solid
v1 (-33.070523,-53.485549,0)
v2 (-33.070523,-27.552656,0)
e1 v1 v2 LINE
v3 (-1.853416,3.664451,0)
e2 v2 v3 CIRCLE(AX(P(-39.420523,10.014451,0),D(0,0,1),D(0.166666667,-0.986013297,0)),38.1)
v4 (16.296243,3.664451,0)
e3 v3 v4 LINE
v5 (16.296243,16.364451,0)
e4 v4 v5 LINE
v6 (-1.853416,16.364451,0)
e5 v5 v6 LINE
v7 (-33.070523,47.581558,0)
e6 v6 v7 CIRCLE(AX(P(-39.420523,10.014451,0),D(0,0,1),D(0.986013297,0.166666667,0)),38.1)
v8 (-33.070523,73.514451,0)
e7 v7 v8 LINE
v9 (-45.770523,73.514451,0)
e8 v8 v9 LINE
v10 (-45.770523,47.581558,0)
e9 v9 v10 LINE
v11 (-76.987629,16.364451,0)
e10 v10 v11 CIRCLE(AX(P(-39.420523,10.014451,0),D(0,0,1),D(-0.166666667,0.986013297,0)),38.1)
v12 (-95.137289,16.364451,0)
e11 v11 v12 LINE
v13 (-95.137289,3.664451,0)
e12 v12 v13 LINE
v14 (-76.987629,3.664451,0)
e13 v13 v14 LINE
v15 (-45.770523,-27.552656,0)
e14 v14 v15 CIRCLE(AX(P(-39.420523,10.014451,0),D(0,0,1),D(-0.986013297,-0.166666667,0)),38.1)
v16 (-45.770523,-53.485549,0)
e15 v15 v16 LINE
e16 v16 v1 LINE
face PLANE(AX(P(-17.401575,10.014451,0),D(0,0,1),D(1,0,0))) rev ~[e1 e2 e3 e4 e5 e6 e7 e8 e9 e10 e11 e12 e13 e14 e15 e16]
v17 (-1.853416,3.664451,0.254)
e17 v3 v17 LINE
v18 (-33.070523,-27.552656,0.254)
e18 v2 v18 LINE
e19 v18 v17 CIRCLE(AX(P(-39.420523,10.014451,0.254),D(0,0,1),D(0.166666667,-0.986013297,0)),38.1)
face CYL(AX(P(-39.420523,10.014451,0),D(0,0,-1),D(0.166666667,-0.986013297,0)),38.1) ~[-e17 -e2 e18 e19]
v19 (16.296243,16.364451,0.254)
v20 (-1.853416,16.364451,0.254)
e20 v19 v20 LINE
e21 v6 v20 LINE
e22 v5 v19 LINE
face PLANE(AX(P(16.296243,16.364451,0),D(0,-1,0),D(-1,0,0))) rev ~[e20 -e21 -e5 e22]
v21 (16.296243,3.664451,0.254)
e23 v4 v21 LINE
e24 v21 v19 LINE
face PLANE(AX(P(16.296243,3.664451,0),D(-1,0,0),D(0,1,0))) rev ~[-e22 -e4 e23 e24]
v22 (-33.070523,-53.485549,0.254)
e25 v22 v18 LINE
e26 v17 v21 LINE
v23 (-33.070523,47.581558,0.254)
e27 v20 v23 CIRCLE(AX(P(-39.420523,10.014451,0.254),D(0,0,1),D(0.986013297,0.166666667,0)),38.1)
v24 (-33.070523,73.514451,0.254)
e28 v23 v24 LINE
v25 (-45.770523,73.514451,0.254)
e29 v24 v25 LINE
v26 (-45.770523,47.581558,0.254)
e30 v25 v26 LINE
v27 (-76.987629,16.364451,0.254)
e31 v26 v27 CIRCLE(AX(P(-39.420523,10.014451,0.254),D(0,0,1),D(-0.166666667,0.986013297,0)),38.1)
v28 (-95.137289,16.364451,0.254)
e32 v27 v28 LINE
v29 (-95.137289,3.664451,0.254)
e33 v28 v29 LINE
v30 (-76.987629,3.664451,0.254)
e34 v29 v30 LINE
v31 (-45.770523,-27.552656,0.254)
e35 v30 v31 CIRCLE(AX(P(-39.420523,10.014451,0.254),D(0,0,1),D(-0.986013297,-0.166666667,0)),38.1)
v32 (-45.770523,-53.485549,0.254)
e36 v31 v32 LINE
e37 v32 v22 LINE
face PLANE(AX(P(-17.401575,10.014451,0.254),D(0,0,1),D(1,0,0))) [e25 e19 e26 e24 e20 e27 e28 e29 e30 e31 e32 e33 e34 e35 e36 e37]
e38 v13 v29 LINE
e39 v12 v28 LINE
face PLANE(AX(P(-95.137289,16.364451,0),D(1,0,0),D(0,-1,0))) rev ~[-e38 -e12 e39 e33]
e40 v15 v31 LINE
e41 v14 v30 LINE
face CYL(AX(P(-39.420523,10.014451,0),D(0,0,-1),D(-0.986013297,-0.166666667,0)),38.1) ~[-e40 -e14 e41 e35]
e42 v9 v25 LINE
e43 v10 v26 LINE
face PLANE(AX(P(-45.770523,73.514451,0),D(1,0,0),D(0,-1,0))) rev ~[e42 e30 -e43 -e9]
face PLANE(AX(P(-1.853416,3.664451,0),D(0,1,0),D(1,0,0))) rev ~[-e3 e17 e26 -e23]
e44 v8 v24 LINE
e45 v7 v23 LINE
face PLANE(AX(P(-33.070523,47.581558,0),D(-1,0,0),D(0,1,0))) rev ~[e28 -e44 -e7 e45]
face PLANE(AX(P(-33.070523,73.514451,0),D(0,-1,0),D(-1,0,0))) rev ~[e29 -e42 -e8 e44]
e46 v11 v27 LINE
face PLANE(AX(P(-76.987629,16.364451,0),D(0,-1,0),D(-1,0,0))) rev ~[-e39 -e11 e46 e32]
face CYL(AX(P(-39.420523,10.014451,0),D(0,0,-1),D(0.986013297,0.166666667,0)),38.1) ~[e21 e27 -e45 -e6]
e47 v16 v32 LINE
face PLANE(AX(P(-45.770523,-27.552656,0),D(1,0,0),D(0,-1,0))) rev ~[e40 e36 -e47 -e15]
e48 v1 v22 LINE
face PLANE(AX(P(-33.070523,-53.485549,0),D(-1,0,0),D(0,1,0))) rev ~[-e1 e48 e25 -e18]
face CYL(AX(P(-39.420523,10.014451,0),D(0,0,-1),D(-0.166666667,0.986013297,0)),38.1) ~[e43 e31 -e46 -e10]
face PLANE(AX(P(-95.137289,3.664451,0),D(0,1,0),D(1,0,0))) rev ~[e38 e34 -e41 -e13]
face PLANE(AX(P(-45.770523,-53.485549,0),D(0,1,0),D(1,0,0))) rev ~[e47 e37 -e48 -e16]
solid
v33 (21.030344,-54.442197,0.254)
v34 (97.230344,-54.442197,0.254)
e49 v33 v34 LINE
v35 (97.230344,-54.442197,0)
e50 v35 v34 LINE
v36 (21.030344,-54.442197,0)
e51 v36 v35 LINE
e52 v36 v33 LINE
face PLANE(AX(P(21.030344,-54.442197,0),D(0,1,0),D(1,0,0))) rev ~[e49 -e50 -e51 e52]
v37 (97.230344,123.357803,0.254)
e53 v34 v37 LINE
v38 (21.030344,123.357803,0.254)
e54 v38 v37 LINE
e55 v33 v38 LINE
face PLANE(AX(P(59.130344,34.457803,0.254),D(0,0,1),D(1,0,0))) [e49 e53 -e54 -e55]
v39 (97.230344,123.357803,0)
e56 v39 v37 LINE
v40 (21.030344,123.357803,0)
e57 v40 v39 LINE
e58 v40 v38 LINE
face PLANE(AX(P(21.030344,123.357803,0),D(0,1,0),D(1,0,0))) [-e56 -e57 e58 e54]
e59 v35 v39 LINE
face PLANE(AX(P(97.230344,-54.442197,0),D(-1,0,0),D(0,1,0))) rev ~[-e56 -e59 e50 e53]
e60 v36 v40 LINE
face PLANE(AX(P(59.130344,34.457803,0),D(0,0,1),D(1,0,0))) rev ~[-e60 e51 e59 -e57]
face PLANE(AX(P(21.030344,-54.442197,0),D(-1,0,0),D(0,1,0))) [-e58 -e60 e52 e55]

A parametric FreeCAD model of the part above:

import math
import FreeCAD as App
import Part
import Sketcher
from FreeCAD import Vector
Q = App.Units.Quantity

doc = App.newDocument("Part")
params = doc.addObject("Spreadsheet::Sheet", "Params")
for row, (alias, value) in enumerate([
    ("sketch1_radius", "1.5 in"),
    ("sketch1_width", "0.5 in"),
    ("pad1_length", "0.01 in"),
    ("sketch2_width", "3 in"),
    ("sketch2_height", "7 in"),
    ("pad2_length", "0.01 in"),
], start=1):
    params.set(f"A{row}", alias)
    params.set(f"B{row}", "=" + value)
    params.setAlias(f"B{row}", alias)

body = doc.addObject("PartDesign::Body", "Body")

sketch1 = body.newObject("Sketcher::SketchObject", "Sketch")
sketch1.AttachmentSupport = (doc.getObject("XY_Plane"), [""])
sketch1.MapMode = "FlatFace"
sketch1.addGeometry([
    Part.ArcOfCircle(Part.Circle(Vector(-39, 10, 0), Vector(0, 0, 1), 38), math.radians(-170), math.radians(-100)),
    Part.LineSegment(Vector(-46, -28, 0), Vector(-46, -53, 0)),
    Part.LineSegment(Vector(-46, -53, 0), Vector(-33, -53, 0)),
    Part.LineSegment(Vector(-33, -53, 0), Vector(-33, -28, 0)),
    Part.ArcOfCircle(Part.Circle(Vector(-39, 10, 0), Vector(0, 0, 1), 38), math.radians(-80), math.radians(-10)),
    Part.LineSegment(Vector(-2, 4, 0), Vector(16, 4, 0)),
    Part.LineSegment(Vector(16, 4, 0), Vector(16, 16, 0)),
    Part.LineSegment(Vector(16, 16, 0), Vector(-2, 16, 0)),
    Part.ArcOfCircle(Part.Circle(Vector(-39, 10, 0), Vector(0, 0, 1), 38), math.radians(10), math.radians(80)),
    Part.LineSegment(Vector(-33, 48, 0), Vector(-33, 74, 0)),
    Part.LineSegment(Vector(-33, 74, 0), Vector(-46, 74, 0)),
    Part.LineSegment(Vector(-46, 74, 0), Vector(-46, 48, 0)),
    Part.ArcOfCircle(Part.Circle(Vector(-39, 10, 0), Vector(0, 0, 1), 38), math.radians(100), math.radians(170)),
    Part.LineSegment(Vector(-77, 16, 0), Vector(-95, 16, 0)),
    Part.LineSegment(Vector(-95, 16, 0), Vector(-95, 4, 0)),
    Part.LineSegment(Vector(-95, 4, 0), Vector(-77, 4, 0)),
], False)
sketch1.addConstraint([
    Sketcher.Constraint("Coincident", 0, 2, 1, 1),
    Sketcher.Constraint("Coincident", 1, 2, 2, 1),
    Sketcher.Constraint("Coincident", 2, 2, 3, 1),
    Sketcher.Constraint("Coincident", 3, 2, 4, 1),
    Sketcher.Constraint("Coincident", 4, 2, 5, 1),
    Sketcher.Constraint("Coincident", 5, 2, 6, 1),
    Sketcher.Constraint("Coincident", 6, 2, 7, 1),
    Sketcher.Constraint("Coincident", 7, 2, 8, 1),
    Sketcher.Constraint("Coincident", 8, 2, 9, 1),
    Sketcher.Constraint("Coincident", 9, 2, 10, 1),
    Sketcher.Constraint("Coincident", 10, 2, 11, 1),
    Sketcher.Constraint("Coincident", 11, 2, 12, 1),
    Sketcher.Constraint("Coincident", 12, 2, 13, 1),
    Sketcher.Constraint("Coincident", 13, 2, 14, 1),
    Sketcher.Constraint("Coincident", 14, 2, 15, 1),
    Sketcher.Constraint("Coincident", 15, 2, 0, 1),
    Sketcher.Constraint("Vertical", 1),
    Sketcher.Constraint("Horizontal", 2),
    Sketcher.Constraint("Vertical", 3),
    Sketcher.Constraint("Horizontal", 5),
    Sketcher.Constraint("Vertical", 6),
    Sketcher.Constraint("Horizontal", 7),
    Sketcher.Constraint("Vertical", 9),
    Sketcher.Constraint("Horizontal", 10),
    Sketcher.Constraint("Vertical", 11),
    Sketcher.Constraint("Horizontal", 13),
    Sketcher.Constraint("Vertical", 14),
    Sketcher.Constraint("Horizontal", 15),
    Sketcher.Constraint("Coincident", 4, 3, 0, 3),
    Sketcher.Constraint("Coincident", 8, 3, 0, 3),
    Sketcher.Constraint("Coincident", 12, 3, 0, 3),
    Sketcher.Constraint("Equal", 0, 4),
    Sketcher.Constraint("Equal", 4, 8),
    Sketcher.Constraint("Equal", 8, 12),
    Sketcher.Constraint("Horizontal", 0, 2, 3, 2),
    Sketcher.Constraint("Horizontal", 8, 2, 11, 2),
    Sketcher.Constraint("Horizontal", 7, 2, 12, 2),
    Sketcher.Constraint("Horizontal", 5, 2, 14, 2),
    Sketcher.Constraint("Vertical", 4, 2, 7, 2),
    Sketcher.Constraint("Vertical", 3, 2, 8, 2),
    Sketcher.Constraint("Equal", 7, 13),
    Sketcher.Constraint("Equal", 10, 6),
    Sketcher.Constraint("Equal", 3, 9),
    Sketcher.Constraint("Radius", 0, Q("1.5 in")),
    Sketcher.Constraint("DistanceX", 2, 1, 2, 2, Q("0.5 in")),
    Sketcher.Constraint("DistanceY", 1, 2, 4, 3, Q("2.5 in")),
    Sketcher.Constraint("DistanceX", 5, 1, 5, 2, 18.149659),
    Sketcher.Constraint("DistanceY", -1, 1, 0, 3, 10.014451),
    Sketcher.Constraint("DistanceX", 12, 2, -1, 1, 76.987629),
])
sketch1.setExpression("Constraints[43]", "Params.sketch1_radius")
sketch1.setExpression("Constraints[44]", "Params.sketch1_width")
pad1 = body.newObject("PartDesign::Pad", "Pad")
pad1.Profile = sketch1
pad1.setExpression("Length", "Params.pad1_length")
body2 = doc.addObject("PartDesign::Body", "Body001")

sketch2 = body2.newObject("Sketcher::SketchObject", "Sketch001")
sketch2.AttachmentSupport = (doc.getObject("XY_Plane001"), [""])
sketch2.MapMode = "FlatFace"
sketch2.addGeometry([
    Part.LineSegment(Vector(21, 123, 0), Vector(21, -54, 0)),
    Part.LineSegment(Vector(21, -54, 0), Vector(97, -54, 0)),
    Part.LineSegment(Vector(97, -54, 0), Vector(97, 123, 0)),
    Part.LineSegment(Vector(97, 123, 0), Vector(21, 123, 0)),
], False)
sketch2.addConstraint([
    Sketcher.Constraint("Coincident", 0, 2, 1, 1),
    Sketcher.Constraint("Coincident", 1, 2, 2, 1),
    Sketcher.Constraint("Coincident", 2, 2, 3, 1),
    Sketcher.Constraint("Coincident", 3, 2, 0, 1),
    Sketcher.Constraint("Vertical", 0),
    Sketcher.Constraint("Horizontal", 1),
    Sketcher.Constraint("Vertical", 2),
    Sketcher.Constraint("Horizontal", 3),
    Sketcher.Constraint("DistanceX", 1, 1, 1, 2, Q("3 in")),
    Sketcher.Constraint("DistanceY", 0, 2, 0, 1, Q("7 in")),
    Sketcher.Constraint("DistanceX", -1, 1, 0, 2, 21.030344),
    Sketcher.Constraint("DistanceY", 0, 2, -1, 1, 54.442197),
])
sketch2.setExpression("Constraints[8]", "Params.sketch2_width")
sketch2.setExpression("Constraints[9]", "Params.sketch2_height")
pad2 = body2.newObject("PartDesign::Pad", "Pad001")
pad2.Profile = sketch2
pad2.setExpression("Length", "Params.pad2_length")

doc.recompute()
